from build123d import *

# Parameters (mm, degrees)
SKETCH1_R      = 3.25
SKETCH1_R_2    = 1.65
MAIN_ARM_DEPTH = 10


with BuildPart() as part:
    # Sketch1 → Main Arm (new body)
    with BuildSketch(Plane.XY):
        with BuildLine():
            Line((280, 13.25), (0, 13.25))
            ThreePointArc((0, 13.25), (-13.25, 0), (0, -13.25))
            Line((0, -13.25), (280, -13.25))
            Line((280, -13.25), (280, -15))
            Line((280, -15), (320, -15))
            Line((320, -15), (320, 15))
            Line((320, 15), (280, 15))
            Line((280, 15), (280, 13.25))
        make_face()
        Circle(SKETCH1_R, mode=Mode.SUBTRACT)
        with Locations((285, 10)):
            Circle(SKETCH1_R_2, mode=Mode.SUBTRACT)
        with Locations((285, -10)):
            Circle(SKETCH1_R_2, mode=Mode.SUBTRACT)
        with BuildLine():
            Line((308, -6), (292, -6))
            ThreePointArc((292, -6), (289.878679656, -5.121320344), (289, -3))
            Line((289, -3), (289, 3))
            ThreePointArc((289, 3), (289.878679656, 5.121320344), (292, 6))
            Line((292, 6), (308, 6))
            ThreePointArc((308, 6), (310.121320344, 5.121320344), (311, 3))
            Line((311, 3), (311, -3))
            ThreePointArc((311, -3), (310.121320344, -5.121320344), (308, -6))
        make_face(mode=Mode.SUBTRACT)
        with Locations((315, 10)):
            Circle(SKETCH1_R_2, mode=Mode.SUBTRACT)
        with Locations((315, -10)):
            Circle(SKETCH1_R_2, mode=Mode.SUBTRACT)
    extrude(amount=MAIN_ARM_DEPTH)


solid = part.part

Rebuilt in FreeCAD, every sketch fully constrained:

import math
import FreeCAD as App
import Part
import Sketcher
from FreeCAD import Vector
Q = App.Units.Quantity

doc = App.newDocument("Part")
body = doc.addObject("PartDesign::Body", "Body")

sketch1 = body.newObject("Sketcher::SketchObject", "Sketch")
sketch1.AttachmentSupport = (doc.getObject("XY_Plane"), [""])
sketch1.MapMode = "FlatFace"
sketch1.addGeometry(Part.LineSegment(Vector(280, 13.2, 0), Vector(0, 13.2, 0)), False)
sketch1.addGeometry(Part.ArcOfCircle(Part.Circle(Vector(0, 0, 0), Vector(0, 0, 1), 13.2), math.radians(90), math.radians(270)), False)
sketch1.addGeometry(Part.LineSegment(Vector(0, -13.2, 0), Vector(280, -13.2, 0)), False)
sketch1.addGeometry(Part.LineSegment(Vector(280, -13.2, 0), Vector(280, -15, 0)), False)
sketch1.addGeometry(Part.LineSegment(Vector(280, -15, 0), Vector(320, -15, 0)), False)
sketch1.addGeometry(Part.LineSegment(Vector(320, -15, 0), Vector(320, 15, 0)), False)
sketch1.addGeometry(Part.LineSegment(Vector(320, 15, 0), Vector(280, 15, 0)), False)
sketch1.addGeometry(Part.LineSegment(Vector(280, 15, 0), Vector(280, 13.2, 0)), False)
sketch1.addGeometry(Part.Circle(Vector(285, -10, 0), Vector(0, 0, 1), 1.6), False)
sketch1.addGeometry(Part.Circle(Vector(315, -10, 0), Vector(0, 0, 1), 1.6), False)
sketch1.addGeometry(Part.Circle(Vector(0, 0, 0), Vector(0, 0, 1), 3.2), False)
sketch1.addGeometry(Part.ArcOfCircle(Part.Circle(Vector(308, -3, 0), Vector(0, 0, 1), 3), math.radians(-90), math.radians(0)), False)
sketch1.addGeometry(Part.LineSegment(Vector(308, -6, 0), Vector(292, -6, 0)), False)
sketch1.addGeometry(Part.ArcOfCircle(Part.Circle(Vector(292, -3, 0), Vector(0, 0, 1), 3), math.radians(180), math.radians(270)), False)
sketch1.addGeometry(Part.LineSegment(Vector(289, -3, 0), Vector(289, 3, 0)), False)
sketch1.addGeometry(Part.ArcOfCircle(Part.Circle(Vector(292, 3, 0), Vector(0, 0, 1), 3), math.radians(90), math.radians(180)), False)
sketch1.addGeometry(Part.LineSegment(Vector(292, 6, 0), Vector(308, 6, 0)), False)
sketch1.addGeometry(Part.ArcOfCircle(Part.Circle(Vector(308, 3, 0), Vector(0, 0, 1), 3), math.radians(0), math.radians(90)), False)
sketch1.addGeometry(Part.LineSegment(Vector(311, 3, 0), Vector(311, -3, 0)), False)
sketch1.addGeometry(Part.Circle(Vector(285, 10, 0), Vector(0, 0, 1), 1.6), False)
sketch1.addGeometry(Part.Circle(Vector(315, 10, 0), Vector(0, 0, 1), 1.6), False)
sketch1.addConstraint(Sketcher.Constraint("Tangent", 0, 2, 1, 1))
sketch1.addConstraint(Sketcher.Constraint("Tangent", 1, 2, 2, 1))
sketch1.addConstraint(Sketcher.Constraint("Coincident", 2, 2, 3, 1))
sketch1.addConstraint(Sketcher.Constraint("Coincident", 3, 2, 4, 1))
sketch1.addConstraint(Sketcher.Constraint("Coincident", 4, 2, 5, 1))
sketch1.addConstraint(Sketcher.Constraint("Coincident", 5, 2, 6, 1))
sketch1.addConstraint(Sketcher.Constraint("Coincident", 6, 2, 7, 1))
sketch1.addConstraint(Sketcher.Constraint("Coincident", 7, 2, 0, 1))
sketch1.addConstraint(Sketcher.Constraint("Tangent", 11, 1, 12, 1))
sketch1.addConstraint(Sketcher.Constraint("Tangent", 12, 2, 13, 2))
sketch1.addConstraint(Sketcher.Constraint("Tangent", 13, 1, 14, 1))
sketch1.addConstraint(Sketcher.Constraint("Tangent", 14, 2, 15, 2))
sketch1.addConstraint(Sketcher.Constraint("Tangent", 15, 1, 16, 1))
sketch1.addConstraint(Sketcher.Constraint("Tangent", 16, 2, 17, 2))
sketch1.addConstraint(Sketcher.Constraint("Tangent", 17, 1, 18, 1))
sketch1.addConstraint(Sketcher.Constraint("Tangent", 18, 2, 11, 2))
sketch1.addConstraint(Sketcher.Constraint("Horizontal", 0))
sketch1.addConstraint(Sketcher.Constraint("Horizontal", 2))
sketch1.addConstraint(Sketcher.Constraint("Vertical", 3))
sketch1.addConstraint(Sketcher.Constraint("Horizontal", 4))
sketch1.addConstraint(Sketcher.Constraint("Vertical", 5))
sketch1.addConstraint(Sketcher.Constraint("Horizontal", 6))
sketch1.addConstraint(Sketcher.Constraint("Vertical", 7))
sketch1.addConstraint(Sketcher.Constraint("Horizontal", 12))
sketch1.addConstraint(Sketcher.Constraint("Vertical", 14))
sketch1.addConstraint(Sketcher.Constraint("Horizontal", 16))
sketch1.addConstraint(Sketcher.Constraint("Vertical", 18))
sketch1.addConstraint(Sketcher.Constraint("Coincident", 1, 3, -1, 1))
sketch1.addConstraint(Sketcher.Constraint("Coincident", 10, 3, -1, 1))
sketch1.addConstraint(Sketcher.Constraint("Equal", 8, 9))
sketch1.addConstraint(Sketcher.Constraint("Equal", 11, 13))
sketch1.addConstraint(Sketcher.Constraint("Equal", 13, 15))
sketch1.addConstraint(Sketcher.Constraint("Equal", 15, 17))
sketch1.addConstraint(Sketcher.Constraint("Equal", 9, 19))
sketch1.addConstraint(Sketcher.Constraint("Equal", 19, 20))
sketch1.addConstraint(Sketcher.Constraint("Symmetric", 8, 3, 19, 3, -1))
sketch1.addConstraint(Sketcher.Constraint("Symmetric", 9, 3, 20, 3, -1))
sketch1.addConstraint(Sketcher.Constraint("Symmetric", 3, 2, 6, 2, -1))
sketch1.addConstraint(Sketcher.Constraint("Horizontal", 8, 3, 9, 3))
sketch1.addConstraint(Sketcher.Constraint("Radius", 11, Q("3 mm")))
sketch1.addConstraint(Sketcher.Constraint("Diameter", 8, Q("3.3 mm")))
sketch1.addConstraint(Sketcher.Constraint("Diameter", 10, Q("6.5 mm")))
sketch1.addConstraint(Sketcher.Constraint("DistanceX", 0, 2, 0, 1, Q("280 mm")))
sketch1.addConstraint(Sketcher.Constraint("DistanceX", 4, 1, 4, 2, Q("40 mm")))
sketch1.addConstraint(Sketcher.Constraint("DistanceX", 12, 2, 12, 1, Q("16 mm")))
sketch1.addConstraint(Sketcher.Constraint("DistanceY", 5, 1, 5, 2, Q("30 mm")))
sketch1.addConstraint(Sketcher.Constraint("DistanceY", 14, 1, 14, 2, Q("6 mm")))
sketch1.addConstraint(Sketcher.Constraint("Radius", 1, Q("13.25 mm")))
sketch1.addConstraint(Sketcher.Constraint("DistanceX", -1, 1, 8, 3, Q("285 mm")))
sketch1.addConstraint(Sketcher.Constraint("DistanceY", 8, 3, -1, 1, Q("10 mm")))
sketch1.addConstraint(Sketcher.Constraint("DistanceX", -1, 1, 9, 3, Q("315 mm")))
sketch1.addConstraint(Sketcher.Constraint("DistanceX", -1, 1, 11, 3, Q("308 mm")))
sketch1.addConstraint(Sketcher.Constraint("DistanceY", 11, 3, -1, 1, Q("3 mm")))
pad1 = body.newObject("PartDesign::Pad", "Pad")
pad1.Profile = sketch1
pad1.Length = 10

doc.recompute()
